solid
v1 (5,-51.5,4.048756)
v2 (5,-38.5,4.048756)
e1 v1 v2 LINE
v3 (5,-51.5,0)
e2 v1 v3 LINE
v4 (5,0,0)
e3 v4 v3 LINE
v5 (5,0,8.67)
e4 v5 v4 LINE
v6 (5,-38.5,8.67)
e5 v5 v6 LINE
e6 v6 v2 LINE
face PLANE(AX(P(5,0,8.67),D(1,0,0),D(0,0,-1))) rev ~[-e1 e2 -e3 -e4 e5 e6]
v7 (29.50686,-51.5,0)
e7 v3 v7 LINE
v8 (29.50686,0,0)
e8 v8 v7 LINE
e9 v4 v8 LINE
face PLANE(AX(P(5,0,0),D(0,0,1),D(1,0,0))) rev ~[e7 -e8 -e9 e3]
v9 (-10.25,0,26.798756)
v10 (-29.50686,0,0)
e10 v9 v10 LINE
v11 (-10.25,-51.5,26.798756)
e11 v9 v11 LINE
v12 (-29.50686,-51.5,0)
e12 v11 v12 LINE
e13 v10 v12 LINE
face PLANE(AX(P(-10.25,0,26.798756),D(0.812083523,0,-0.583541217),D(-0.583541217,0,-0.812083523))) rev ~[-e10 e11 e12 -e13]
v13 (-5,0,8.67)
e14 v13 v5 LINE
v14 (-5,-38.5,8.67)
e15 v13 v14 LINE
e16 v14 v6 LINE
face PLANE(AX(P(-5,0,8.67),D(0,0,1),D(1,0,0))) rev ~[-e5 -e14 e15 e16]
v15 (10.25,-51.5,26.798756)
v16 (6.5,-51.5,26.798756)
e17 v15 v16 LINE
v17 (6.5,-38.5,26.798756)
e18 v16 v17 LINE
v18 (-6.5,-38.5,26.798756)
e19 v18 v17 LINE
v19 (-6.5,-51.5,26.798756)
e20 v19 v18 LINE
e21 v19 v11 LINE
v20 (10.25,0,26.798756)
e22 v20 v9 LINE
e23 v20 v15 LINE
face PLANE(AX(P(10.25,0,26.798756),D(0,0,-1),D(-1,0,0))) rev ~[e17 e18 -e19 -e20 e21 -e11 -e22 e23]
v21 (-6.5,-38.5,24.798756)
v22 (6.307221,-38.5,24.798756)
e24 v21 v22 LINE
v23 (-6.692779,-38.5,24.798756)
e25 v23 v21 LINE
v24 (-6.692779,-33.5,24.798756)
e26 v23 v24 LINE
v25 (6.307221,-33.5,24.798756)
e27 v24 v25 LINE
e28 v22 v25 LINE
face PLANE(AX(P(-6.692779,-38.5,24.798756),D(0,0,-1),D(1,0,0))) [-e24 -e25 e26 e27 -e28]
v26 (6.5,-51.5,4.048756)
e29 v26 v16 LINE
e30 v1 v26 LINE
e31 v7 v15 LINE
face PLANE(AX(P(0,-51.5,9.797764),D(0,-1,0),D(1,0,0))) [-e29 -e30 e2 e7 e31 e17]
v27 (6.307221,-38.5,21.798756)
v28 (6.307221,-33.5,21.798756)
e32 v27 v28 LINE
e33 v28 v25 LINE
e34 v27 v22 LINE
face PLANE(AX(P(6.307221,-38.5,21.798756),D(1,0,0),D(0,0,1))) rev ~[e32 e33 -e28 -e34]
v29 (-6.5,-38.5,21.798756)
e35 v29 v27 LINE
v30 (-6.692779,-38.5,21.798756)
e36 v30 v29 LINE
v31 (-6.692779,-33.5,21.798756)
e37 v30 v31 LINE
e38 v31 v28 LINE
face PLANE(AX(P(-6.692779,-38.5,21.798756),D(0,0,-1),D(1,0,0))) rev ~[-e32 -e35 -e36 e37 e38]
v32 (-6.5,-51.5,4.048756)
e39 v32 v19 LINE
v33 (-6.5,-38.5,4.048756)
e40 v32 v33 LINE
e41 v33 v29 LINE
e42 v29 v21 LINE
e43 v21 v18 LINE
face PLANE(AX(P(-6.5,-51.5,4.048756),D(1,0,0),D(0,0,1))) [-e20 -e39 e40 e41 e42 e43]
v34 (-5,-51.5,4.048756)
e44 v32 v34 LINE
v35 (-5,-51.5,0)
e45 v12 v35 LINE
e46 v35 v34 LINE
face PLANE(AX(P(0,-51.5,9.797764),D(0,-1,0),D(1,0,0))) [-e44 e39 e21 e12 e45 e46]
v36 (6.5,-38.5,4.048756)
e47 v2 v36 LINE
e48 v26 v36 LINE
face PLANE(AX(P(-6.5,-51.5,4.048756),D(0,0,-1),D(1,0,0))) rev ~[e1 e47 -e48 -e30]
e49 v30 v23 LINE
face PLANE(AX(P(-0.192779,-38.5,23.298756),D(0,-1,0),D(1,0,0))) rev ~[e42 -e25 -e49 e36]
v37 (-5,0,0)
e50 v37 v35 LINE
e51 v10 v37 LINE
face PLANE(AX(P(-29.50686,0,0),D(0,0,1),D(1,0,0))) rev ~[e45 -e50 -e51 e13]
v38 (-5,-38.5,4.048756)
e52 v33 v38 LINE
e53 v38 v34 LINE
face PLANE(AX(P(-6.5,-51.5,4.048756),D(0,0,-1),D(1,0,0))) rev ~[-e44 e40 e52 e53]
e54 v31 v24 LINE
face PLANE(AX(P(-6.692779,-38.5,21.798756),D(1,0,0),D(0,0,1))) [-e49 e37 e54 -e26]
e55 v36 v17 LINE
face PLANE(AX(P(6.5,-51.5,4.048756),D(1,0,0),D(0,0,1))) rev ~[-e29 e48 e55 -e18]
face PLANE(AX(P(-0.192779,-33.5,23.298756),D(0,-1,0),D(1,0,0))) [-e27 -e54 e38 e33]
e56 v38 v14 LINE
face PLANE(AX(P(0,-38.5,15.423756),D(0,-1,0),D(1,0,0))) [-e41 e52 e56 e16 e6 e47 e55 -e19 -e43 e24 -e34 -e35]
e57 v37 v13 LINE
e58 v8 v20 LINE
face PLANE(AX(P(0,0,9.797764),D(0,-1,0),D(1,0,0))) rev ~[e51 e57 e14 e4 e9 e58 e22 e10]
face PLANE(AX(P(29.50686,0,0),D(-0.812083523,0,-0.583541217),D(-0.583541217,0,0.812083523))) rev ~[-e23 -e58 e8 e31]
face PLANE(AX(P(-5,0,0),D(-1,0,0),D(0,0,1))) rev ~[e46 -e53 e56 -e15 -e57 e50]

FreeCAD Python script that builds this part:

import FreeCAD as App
import Part
import Sketcher

V = App.Vector
Q = App.Units.Quantity

doc = App.newDocument("Part")
params = doc.addObject("Spreadsheet::Sheet", "Params")
for row, (alias, value) in enumerate([
    ("sketch1_width", "10 mm"),
    ("sketch1_length", "33 mm"),
    ("sketch1_width2", "20.5 mm"),
    ("sketch1_height", "8.67 mm"),
    ("pad1_length", "51.5 mm"),
    ("sketch2_width", "13 mm"),
    ("sketch2_height", "22.75 mm"),
    ("pocket1_length", "13 mm"),
    ("sketch3_width", "13 mm"),
    ("sketch3_height", "3 mm"),
    ("pocket2_length", "5 mm"),
], start=1):
    params.set(f"A{row}", alias)
    params.set(f"B{row}", "=" + value)
    params.setAlias(f"B{row}", alias)

body = doc.addObject("PartDesign::Body", "Body")

sketch1 = doc.addObject("Sketcher::SketchObject", "Sketch")
body.addObject(sketch1)
sketch1.AttachmentSupport = (doc.XZ_Plane, [""])
sketch1.MapMode = "FlatFace"
sketch1.addGeometry([
    Part.LineSegment(V(5, 0, 0), V(29.50686, 0, 0)),
    Part.LineSegment(V(29.50686, 0, 0), V(10.25, 26.798756, 0)),
    Part.LineSegment(V(10.25, 26.798756, 0), V(-10.25, 26.798756, 0)),
    Part.LineSegment(V(-10.25, 26.798756, 0), V(-29.50686, 0, 0)),
    Part.LineSegment(V(-29.50686, 0, 0), V(-5, 0, 0)),
    Part.LineSegment(V(-5, 0, 0), V(-5, 8.67, 0)),
    Part.LineSegment(V(-5, 8.67, 0), V(5, 8.67, 0)),
    Part.LineSegment(V(5, 8.67, 0), V(5, 0, 0)),
], False)
sketch1.addConstraint([
    Sketcher.Constraint("Coincident", 0, 2, 1, 1),
    Sketcher.Constraint("Coincident", 1, 2, 2, 1),
    Sketcher.Constraint("Coincident", 2, 2, 3, 1),
    Sketcher.Constraint("Coincident", 3, 2, 4, 1),
    Sketcher.Constraint("Coincident", 4, 2, 5, 1),
    Sketcher.Constraint("Coincident", 5, 2, 6, 1),
    Sketcher.Constraint("Coincident", 6, 2, 7, 1),
    Sketcher.Constraint("Coincident", 7, 2, 0, 1),
    Sketcher.Constraint("Horizontal", 0),
    Sketcher.Constraint("Horizontal", 2),
    Sketcher.Constraint("Horizontal", 4),
    Sketcher.Constraint("Vertical", 5),
    Sketcher.Constraint("Horizontal", 6),
    Sketcher.Constraint("Vertical", 7),
    Sketcher.Constraint("Symmetric", 0, 2, 3, 2, -1, 1),
    Sketcher.Constraint("Symmetric", 4, 2, 7, 2, -2),
    Sketcher.Constraint("Equal", 1, 3),
    Sketcher.Constraint("DistanceX", 6, 1, 6, 2, 10.0),
    Sketcher.Constraint("Distance", 1, 33.0),
    Sketcher.Constraint("DistanceX", 2, 2, 2, 1, 20.5),
    Sketcher.Constraint("Angle", 1, Q("125.7 deg")),
    Sketcher.Constraint("DistanceY", 5, 1, 5, 2, 8.67),
])
sketch1.setExpression("Constraints[17]", "Params.sketch1_width")
sketch1.setExpression("Constraints[18]", "Params.sketch1_length")
sketch1.setExpression("Constraints[19]", "Params.sketch1_width2")
sketch1.setExpression("Constraints[21]", "Params.sketch1_height")
pad1 = doc.addObject("PartDesign::Pad", "Pad")
body.addObject(pad1)
pad1.Profile = sketch1
pad1.setExpression("Length", "Params.pad1_length")

sketch2 = doc.addObject("Sketcher::SketchObject", "Sketch001")
body.addObject(sketch2)
sketch2.AttachmentSupport = (doc.XZ_Plane, [""])
sketch2.MapMode = "FlatFace"
sketch2.AttachmentOffset = App.Placement(V(0, 0, 51.5), App.Rotation())
sketch2.addGeometry([
    Part.LineSegment(V(-6.5, 26.798756, 0), V(-6.5, 4.048756, 0)),
    Part.LineSegment(V(-6.5, 4.048756, 0), V(6.5, 4.048756, 0)),
    Part.LineSegment(V(6.5, 4.048756, 0), V(6.5, 26.798756, 0)),
    Part.LineSegment(V(6.5, 26.798756, 0), V(-6.5, 26.798756, 0)),
], False)
sketch2.addConstraint([
    Sketcher.Constraint("Coincident", 0, 2, 1, 1),
    Sketcher.Constraint("Coincident", 1, 2, 2, 1),
    Sketcher.Constraint("Coincident", 2, 2, 3, 1),
    Sketcher.Constraint("Coincident", 3, 2, 0, 1),
    Sketcher.Constraint("Vertical", 0),
    Sketcher.Constraint("Horizontal", 1),
    Sketcher.Constraint("Vertical", 2),
    Sketcher.Constraint("Horizontal", 3),
    Sketcher.Constraint("DistanceX", 1, 1, 1, 2, 13.0),
    Sketcher.Constraint("DistanceY", 0, 2, 0, 1, 22.75),
    Sketcher.Constraint("DistanceX", 0, 2, -1, 1, 6.5),
    Sketcher.Constraint("DistanceY", -1, 1, 0, 2, 4.048756),
])
sketch2.setExpression("Constraints[8]", "Params.sketch2_width")
sketch2.setExpression("Constraints[9]", "Params.sketch2_height")
pocket1 = doc.addObject("PartDesign::Pocket", "Pocket")
body.addObject(pocket1)
pocket1.Profile = sketch2
pocket1.setExpression("Length", "Params.pocket1_length")

sketch3 = doc.addObject("Sketcher::SketchObject", "Sketch002")
body.addObject(sketch3)
sketch3.AttachmentSupport = (doc.XZ_Plane, [""])
sketch3.MapMode = "FlatFace"
sketch3.AttachmentOffset = App.Placement(V(0, 0, 38.5), App.Rotation())
sketch3.addGeometry([
    Part.LineSegment(V(-6.692779, 24.798756, 0), V(-6.692779, 21.798756, 0)),
    Part.LineSegment(V(-6.692779, 21.798756, 0), V(6.307221, 21.798756, 0)),
    Part.LineSegment(V(6.307221, 21.798756, 0), V(6.307221, 24.798756, 0)),
    Part.LineSegment(V(6.307221, 24.798756, 0), V(-6.692779, 24.798756, 0)),
], False)
sketch3.addConstraint([
    Sketcher.Constraint("Coincident", 0, 2, 1, 1),
    Sketcher.Constraint("Coincident", 1, 2, 2, 1),
    Sketcher.Constraint("Coincident", 2, 2, 3, 1),
    Sketcher.Constraint("Coincident", 3, 2, 0, 1),
    Sketcher.Constraint("Vertical", 0),
    Sketcher.Constraint("Horizontal", 1),
    Sketcher.Constraint("Vertical", 2),
    Sketcher.Constraint("Horizontal", 3),
    Sketcher.Constraint("DistanceX", 1, 1, 1, 2, 13.0),
    Sketcher.Constraint("DistanceY", 0, 2, 0, 1, 3.0),
    Sketcher.Constraint("DistanceX", 0, 2, -1, 1, 6.692779),
    Sketcher.Constraint("DistanceY", -1, 1, 0, 2, 21.798756),
])
sketch3.setExpression("Constraints[8]", "Params.sketch3_width")
sketch3.setExpression("Constraints[9]", "Params.sketch3_height")
pocket2 = doc.addObject("PartDesign::Pocket", "Pocket001")
body.addObject(pocket2)
pocket2.Profile = sketch3
pocket2.setExpression("Length", "Params.pocket2_length")

doc.recompute()
